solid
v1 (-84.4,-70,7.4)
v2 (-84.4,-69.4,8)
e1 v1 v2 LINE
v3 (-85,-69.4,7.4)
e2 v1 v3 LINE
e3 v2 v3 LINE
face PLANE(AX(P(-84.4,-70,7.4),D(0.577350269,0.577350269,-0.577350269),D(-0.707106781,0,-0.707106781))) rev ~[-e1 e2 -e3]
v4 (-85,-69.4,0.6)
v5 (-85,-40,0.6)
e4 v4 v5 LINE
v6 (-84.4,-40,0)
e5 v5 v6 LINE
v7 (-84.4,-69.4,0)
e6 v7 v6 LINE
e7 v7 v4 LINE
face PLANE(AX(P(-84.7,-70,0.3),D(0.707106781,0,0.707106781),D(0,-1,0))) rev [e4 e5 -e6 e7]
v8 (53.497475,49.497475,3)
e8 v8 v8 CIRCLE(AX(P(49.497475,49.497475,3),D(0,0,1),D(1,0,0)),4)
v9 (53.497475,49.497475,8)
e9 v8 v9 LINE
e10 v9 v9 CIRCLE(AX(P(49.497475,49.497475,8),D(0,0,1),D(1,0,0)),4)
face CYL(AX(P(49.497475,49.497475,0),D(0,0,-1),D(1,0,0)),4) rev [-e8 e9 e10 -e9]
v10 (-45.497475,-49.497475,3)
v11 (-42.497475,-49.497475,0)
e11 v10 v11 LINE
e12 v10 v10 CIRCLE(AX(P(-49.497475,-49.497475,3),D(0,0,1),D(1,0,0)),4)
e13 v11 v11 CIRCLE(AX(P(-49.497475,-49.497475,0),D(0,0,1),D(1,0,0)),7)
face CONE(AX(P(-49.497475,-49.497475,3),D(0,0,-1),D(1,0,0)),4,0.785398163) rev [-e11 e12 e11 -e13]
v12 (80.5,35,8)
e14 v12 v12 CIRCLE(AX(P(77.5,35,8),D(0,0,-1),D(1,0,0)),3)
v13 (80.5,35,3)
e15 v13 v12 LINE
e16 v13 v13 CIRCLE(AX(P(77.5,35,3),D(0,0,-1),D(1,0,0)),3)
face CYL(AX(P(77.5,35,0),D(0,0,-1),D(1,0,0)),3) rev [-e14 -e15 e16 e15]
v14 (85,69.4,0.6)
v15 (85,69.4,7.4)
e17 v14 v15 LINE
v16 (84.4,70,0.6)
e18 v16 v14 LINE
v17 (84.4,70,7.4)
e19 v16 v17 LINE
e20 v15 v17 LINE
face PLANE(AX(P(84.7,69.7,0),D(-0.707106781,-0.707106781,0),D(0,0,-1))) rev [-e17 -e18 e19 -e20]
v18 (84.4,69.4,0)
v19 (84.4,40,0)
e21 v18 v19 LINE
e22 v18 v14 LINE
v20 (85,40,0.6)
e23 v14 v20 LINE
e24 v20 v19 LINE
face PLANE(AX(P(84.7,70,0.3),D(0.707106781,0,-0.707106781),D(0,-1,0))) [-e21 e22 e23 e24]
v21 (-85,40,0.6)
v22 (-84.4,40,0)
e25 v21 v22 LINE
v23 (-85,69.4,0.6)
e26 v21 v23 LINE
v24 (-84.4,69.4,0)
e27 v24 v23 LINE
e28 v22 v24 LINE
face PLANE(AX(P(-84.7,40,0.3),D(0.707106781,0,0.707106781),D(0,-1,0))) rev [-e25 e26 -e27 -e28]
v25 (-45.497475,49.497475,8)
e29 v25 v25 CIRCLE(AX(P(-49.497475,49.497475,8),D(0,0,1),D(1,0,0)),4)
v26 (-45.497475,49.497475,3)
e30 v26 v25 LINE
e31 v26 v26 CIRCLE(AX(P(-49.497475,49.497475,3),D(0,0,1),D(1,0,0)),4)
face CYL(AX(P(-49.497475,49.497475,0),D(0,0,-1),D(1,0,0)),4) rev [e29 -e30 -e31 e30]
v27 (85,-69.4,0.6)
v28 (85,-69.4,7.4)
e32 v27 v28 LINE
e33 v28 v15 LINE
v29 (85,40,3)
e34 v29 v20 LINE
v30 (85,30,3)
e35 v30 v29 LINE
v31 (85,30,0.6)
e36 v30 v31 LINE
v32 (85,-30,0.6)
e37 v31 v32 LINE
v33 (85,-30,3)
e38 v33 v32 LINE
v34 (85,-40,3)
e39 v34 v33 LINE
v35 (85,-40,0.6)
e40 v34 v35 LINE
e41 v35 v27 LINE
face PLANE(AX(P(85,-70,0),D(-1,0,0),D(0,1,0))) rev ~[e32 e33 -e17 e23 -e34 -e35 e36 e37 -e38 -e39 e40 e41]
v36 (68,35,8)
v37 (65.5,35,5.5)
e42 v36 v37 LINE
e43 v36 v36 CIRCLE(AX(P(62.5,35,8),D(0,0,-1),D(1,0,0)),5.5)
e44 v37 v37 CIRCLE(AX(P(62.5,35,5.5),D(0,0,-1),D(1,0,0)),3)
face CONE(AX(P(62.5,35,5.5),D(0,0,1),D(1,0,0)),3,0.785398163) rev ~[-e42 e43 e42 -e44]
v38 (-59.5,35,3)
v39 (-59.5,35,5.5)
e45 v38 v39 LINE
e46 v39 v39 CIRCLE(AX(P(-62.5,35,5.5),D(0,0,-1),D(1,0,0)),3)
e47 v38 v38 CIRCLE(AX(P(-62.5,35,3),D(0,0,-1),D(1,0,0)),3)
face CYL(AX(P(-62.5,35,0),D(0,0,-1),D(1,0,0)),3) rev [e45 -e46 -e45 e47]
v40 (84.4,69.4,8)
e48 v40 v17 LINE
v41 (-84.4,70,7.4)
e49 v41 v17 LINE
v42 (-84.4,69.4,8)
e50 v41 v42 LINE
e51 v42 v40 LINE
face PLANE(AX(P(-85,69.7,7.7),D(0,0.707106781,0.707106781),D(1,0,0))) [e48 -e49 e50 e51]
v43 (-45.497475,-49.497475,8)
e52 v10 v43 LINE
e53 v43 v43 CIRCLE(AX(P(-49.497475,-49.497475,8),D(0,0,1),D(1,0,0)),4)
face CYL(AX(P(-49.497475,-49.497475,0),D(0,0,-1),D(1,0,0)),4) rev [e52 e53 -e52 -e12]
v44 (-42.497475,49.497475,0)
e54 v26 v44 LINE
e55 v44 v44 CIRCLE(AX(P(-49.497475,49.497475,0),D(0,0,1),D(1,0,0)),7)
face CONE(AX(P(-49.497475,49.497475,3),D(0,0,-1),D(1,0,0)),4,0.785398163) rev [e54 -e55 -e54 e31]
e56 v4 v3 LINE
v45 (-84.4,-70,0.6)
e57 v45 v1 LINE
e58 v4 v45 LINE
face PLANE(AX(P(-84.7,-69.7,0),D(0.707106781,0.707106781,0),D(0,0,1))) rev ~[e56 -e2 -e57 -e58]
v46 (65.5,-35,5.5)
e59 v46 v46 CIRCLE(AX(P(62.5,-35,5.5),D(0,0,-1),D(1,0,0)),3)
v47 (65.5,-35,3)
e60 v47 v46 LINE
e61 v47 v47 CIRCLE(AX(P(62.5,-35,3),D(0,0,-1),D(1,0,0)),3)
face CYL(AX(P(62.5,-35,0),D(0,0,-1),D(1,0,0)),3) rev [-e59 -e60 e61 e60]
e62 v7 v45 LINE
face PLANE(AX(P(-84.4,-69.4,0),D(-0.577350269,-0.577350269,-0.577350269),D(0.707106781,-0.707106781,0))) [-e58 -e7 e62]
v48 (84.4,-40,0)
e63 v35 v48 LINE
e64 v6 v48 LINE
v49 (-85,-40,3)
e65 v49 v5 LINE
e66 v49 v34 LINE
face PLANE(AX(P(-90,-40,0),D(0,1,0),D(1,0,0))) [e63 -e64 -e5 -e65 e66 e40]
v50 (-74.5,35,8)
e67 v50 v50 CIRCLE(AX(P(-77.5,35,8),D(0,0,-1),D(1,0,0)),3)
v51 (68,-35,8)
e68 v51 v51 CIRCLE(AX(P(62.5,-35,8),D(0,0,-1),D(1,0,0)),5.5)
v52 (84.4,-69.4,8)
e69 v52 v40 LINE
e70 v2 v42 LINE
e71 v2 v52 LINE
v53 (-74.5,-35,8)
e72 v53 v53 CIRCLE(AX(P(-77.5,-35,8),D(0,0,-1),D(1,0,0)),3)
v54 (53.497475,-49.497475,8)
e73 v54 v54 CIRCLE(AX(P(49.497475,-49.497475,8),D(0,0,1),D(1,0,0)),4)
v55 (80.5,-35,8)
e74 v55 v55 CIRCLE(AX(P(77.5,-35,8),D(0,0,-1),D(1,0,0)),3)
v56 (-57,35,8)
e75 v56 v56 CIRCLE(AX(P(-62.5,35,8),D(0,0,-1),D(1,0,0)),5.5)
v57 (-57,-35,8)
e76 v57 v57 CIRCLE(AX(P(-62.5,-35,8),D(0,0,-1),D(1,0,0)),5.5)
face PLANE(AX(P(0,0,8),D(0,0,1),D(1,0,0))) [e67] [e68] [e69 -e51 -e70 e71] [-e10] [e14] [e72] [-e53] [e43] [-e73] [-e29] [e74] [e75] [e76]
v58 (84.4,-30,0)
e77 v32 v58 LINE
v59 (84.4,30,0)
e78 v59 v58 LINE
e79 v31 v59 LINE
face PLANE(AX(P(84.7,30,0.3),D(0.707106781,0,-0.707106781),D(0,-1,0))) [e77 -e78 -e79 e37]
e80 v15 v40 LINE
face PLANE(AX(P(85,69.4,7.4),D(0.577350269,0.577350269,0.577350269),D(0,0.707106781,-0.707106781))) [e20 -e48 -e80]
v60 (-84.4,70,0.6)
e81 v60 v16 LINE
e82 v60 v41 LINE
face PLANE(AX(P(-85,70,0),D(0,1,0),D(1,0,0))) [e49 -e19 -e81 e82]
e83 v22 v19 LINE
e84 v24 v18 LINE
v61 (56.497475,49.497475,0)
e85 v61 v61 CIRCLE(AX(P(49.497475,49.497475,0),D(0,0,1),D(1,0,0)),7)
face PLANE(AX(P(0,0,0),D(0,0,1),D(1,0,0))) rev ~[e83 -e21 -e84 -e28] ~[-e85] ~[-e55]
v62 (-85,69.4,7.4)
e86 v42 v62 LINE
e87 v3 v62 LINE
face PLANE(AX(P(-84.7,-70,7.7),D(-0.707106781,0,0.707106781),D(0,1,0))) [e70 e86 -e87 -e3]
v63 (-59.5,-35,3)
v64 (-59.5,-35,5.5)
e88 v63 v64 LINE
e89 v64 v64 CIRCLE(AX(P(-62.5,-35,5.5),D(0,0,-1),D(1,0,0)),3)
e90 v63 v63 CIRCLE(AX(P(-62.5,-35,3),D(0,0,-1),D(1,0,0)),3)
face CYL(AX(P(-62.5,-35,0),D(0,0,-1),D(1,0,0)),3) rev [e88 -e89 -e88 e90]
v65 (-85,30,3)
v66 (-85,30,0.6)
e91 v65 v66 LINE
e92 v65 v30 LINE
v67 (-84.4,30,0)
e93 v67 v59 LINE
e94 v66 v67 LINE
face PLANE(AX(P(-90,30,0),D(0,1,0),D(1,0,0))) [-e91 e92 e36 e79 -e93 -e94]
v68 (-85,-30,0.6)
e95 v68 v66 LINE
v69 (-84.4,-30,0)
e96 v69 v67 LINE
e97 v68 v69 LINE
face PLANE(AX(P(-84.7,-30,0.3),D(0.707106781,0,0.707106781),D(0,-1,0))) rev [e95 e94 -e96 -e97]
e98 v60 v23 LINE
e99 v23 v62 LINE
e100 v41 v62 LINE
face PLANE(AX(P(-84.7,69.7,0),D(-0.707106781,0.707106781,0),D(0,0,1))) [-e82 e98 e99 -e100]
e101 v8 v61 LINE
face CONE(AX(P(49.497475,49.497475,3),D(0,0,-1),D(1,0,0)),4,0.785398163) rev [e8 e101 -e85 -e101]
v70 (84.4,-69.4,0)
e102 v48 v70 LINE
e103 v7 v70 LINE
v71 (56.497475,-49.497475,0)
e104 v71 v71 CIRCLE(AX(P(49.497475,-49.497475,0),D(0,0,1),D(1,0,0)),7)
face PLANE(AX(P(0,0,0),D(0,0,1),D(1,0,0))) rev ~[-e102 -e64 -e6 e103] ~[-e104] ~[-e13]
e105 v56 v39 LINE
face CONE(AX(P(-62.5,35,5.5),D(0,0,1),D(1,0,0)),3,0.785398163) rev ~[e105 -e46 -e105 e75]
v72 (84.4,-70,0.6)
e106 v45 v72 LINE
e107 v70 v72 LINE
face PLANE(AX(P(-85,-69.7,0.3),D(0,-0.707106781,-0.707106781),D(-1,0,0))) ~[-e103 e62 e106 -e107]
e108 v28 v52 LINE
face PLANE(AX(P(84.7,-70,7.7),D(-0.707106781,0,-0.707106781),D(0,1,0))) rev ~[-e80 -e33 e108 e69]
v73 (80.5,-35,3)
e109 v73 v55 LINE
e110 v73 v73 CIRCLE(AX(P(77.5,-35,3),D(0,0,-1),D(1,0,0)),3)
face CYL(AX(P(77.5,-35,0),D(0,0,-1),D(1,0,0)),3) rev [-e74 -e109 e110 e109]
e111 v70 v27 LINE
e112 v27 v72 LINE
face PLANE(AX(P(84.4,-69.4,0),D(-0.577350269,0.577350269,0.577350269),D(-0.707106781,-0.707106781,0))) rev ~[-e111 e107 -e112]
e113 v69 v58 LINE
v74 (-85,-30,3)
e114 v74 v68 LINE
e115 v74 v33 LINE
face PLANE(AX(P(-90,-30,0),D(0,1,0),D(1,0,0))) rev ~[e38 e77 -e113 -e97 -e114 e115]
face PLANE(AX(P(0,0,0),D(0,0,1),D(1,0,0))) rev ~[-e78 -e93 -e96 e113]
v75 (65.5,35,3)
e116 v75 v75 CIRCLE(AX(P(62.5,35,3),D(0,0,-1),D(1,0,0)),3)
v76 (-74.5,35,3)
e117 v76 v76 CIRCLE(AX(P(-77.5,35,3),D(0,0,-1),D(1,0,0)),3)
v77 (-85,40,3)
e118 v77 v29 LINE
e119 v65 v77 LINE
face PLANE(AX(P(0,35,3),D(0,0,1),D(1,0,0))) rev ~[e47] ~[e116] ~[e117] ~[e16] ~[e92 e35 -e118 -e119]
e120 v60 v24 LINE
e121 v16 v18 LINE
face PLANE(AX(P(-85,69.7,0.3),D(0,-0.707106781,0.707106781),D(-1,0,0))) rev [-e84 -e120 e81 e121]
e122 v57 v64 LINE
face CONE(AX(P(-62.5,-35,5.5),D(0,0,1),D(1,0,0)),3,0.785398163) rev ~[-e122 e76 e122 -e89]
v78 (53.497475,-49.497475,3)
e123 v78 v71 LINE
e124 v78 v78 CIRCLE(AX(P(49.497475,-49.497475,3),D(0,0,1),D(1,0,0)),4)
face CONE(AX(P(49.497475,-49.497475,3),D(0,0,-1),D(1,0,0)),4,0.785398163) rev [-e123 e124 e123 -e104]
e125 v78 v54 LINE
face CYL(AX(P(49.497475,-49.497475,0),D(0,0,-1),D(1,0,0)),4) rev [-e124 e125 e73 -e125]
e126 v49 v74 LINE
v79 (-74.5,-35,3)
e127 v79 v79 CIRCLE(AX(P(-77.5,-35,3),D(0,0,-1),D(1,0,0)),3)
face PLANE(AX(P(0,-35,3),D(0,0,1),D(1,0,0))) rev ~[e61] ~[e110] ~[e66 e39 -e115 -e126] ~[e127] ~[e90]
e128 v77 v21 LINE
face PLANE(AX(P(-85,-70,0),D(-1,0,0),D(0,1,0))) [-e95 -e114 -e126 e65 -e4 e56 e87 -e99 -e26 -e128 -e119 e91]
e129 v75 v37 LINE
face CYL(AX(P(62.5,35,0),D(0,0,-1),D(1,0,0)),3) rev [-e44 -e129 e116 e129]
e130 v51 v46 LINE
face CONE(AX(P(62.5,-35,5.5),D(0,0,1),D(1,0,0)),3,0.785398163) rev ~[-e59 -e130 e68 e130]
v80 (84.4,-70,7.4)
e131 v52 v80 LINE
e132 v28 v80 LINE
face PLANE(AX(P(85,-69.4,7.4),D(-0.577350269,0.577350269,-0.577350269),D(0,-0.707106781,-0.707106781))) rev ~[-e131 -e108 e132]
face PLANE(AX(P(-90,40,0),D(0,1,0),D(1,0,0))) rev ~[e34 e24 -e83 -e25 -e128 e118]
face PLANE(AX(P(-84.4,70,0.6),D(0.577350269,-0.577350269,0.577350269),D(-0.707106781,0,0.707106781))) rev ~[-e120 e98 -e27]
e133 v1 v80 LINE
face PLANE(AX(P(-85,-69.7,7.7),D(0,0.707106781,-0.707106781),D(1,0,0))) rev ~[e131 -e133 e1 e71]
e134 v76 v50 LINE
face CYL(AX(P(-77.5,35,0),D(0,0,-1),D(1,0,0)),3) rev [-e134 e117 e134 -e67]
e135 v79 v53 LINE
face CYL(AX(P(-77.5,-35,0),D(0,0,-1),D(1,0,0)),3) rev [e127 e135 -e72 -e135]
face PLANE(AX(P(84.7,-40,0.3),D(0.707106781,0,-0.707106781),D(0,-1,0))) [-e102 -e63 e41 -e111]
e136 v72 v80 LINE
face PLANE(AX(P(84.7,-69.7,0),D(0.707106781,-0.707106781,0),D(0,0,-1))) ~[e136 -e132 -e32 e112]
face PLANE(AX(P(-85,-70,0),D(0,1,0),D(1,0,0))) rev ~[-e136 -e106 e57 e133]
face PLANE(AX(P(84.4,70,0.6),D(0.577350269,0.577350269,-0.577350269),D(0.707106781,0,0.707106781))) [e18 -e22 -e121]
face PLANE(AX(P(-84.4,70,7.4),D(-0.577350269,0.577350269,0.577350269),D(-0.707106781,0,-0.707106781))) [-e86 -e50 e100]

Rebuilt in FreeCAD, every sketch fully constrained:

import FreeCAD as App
import Part
import Sketcher


def edges_at(feature, points):
    """Names of the edges that pass closest to the given points."""
    edges = feature.Shape.Edges
    near = lambda p: min(range(len(edges)), key=lambda i: edges[i].distToShape(Part.Vertex(*p))[0])
    return sorted({f"Edge{near(p) + 1}" for p in points})


def add_polygon(sketch, points):
    """Adds a closed chain of lines whose ends are joined by coincident constraints."""
    first, n = sketch.GeometryCount, len(points)
    for a, b in zip(points, points[1:] + points[:1]):
        sketch.addGeometry(Part.LineSegment(App.Vector(*a, 0), App.Vector(*b, 0)), False)
    for i in range(n):
        sketch.addConstraint(Sketcher.Constraint("Coincident", first + i, 2, first + (i + 1) % n, 1))

doc = App.newDocument("Part")
body = doc.addObject("PartDesign::Body", "Body")

# Sketch on XY plane
sketch1 = body.newObject("Sketcher::SketchObject", "Sketch")
sketch1.AttachmentSupport = (doc.getObject("XY_Plane"), [""])
sketch1.MapMode = "FlatFace"
add_polygon(sketch1, [(-85, 70), (-85, -70), (85, -70), (85, 70)])  # lines 0-3
sketch1.addGeometry(Part.Circle(App.Vector(-49.497475, -49.497475, 0), App.Vector(0, 0, 1), 4), False)  # 4
sketch1.addGeometry(Part.Circle(App.Vector(49.497475, -49.497475, 0), App.Vector(0, 0, 1), 4), False)  # 5
sketch1.addGeometry(Part.Circle(App.Vector(-49.497475, 49.497475, 0), App.Vector(0, 0, 1), 4), False)  # 6
sketch1.addGeometry(Part.Circle(App.Vector(49.497475, 49.497475, 0), App.Vector(0, 0, 1), 4), False)  # 7
sketch1.addConstraint(Sketcher.Constraint("Vertical", 0))
sketch1.addConstraint(Sketcher.Constraint("Horizontal", 1))
sketch1.addConstraint(Sketcher.Constraint("Vertical", 2))
sketch1.addConstraint(Sketcher.Constraint("Horizontal", 3))
sketch1.addConstraint(Sketcher.Constraint("Equal", 4, 5))
sketch1.addConstraint(Sketcher.Constraint("Equal", 5, 6))
sketch1.addConstraint(Sketcher.Constraint("Equal", 6, 7))
sketch1.addConstraint(Sketcher.Constraint("Symmetric", 5, 3, 6, 3, -1, 1))
sketch1.addConstraint(Sketcher.Constraint("Symmetric", 4, 3, 7, 3, -1, 1))
sketch1.addConstraint(Sketcher.Constraint("Symmetric", 0, 2, 2, 2, -1, 1))
sketch1.addConstraint(Sketcher.Constraint("Symmetric", 4, 3, 5, 3, -2))
sketch1.addConstraint(Sketcher.Constraint("Diameter", 4, 8.0))
sketch1.addConstraint(Sketcher.Constraint("DistanceX", 1, 1, 1, 2, 170.0))
sketch1.addConstraint(Sketcher.Constraint("DistanceY", 0, 2, 0, 1, 140.0))
sketch1.addConstraint(Sketcher.Constraint("DistanceX", 4, 3, 5, 3, 98.994949))
sketch1.addConstraint(Sketcher.Constraint("DistanceY", 4, 3, 6, 3, 98.994949))
pad1 = body.newObject("PartDesign::Pad", "Pad")
pad1.Profile = sketch1
pad1.Length = 8
doc.recompute()

chamfer = body.newObject("PartDesign::Chamfer", "Chamfer")
chamfer.Base = (pad1, edges_at(pad1, [
    (-53.497, -49.497, 0),
    (-53.497, 49.497, 0),
    (45.497, 49.497, 0),
    (45.497, -49.497, 0),
]))
chamfer.Size = 3

# Sketch on XY plane
sketch2 = body.newObject("Sketcher::SketchObject", "Sketch001")
sketch2.AttachmentSupport = (doc.getObject("XY_Plane"), [""])
sketch2.MapMode = "FlatFace"
add_polygon(sketch2, [(-90, -30), (-90, -40), (90, -40), (90, -30)])  # lines 0-3
add_polygon(sketch2, [(-90, 40), (-90, 30), (90, 30), (90, 40)])  # lines 4-7
sketch2.addConstraint(Sketcher.Constraint("Vertical", 0))
sketch2.addConstraint(Sketcher.Constraint("Horizontal", 1))
sketch2.addConstraint(Sketcher.Constraint("Vertical", 2))
sketch2.addConstraint(Sketcher.Constraint("Horizontal", 3))
sketch2.addConstraint(Sketcher.Constraint("Vertical", 4))
sketch2.addConstraint(Sketcher.Constraint("Horizontal", 5))
sketch2.addConstraint(Sketcher.Constraint("Vertical", 6))
sketch2.addConstraint(Sketcher.Constraint("Horizontal", 7))
sketch2.addConstraint(Sketcher.Constraint("Symmetric", 2, 2, 4, 2, -1, 1))
sketch2.addConstraint(Sketcher.Constraint("Symmetric", 0, 2, 6, 2, -1, 1))
sketch2.addConstraint(Sketcher.Constraint("Vertical", 3, 2, 4, 2))
sketch2.addConstraint(Sketcher.Constraint("DistanceX", 1, 1, 1, 2, 180.0))
sketch2.addConstraint(Sketcher.Constraint("DistanceY", 0, 2, 0, 1, 10.0))
sketch2.addConstraint(Sketcher.Constraint("DistanceY", 0, 2, -1, 1, 40.0))
pocket1 = body.newObject("PartDesign::Pocket", "Pocket")
pocket1.Profile = sketch2
pocket1.Type = "TwoLengths"
pocket1.Length = 25
pocket1.Length2 = 3

# Sketch on XY plane
sketch3 = body.newObject("Sketcher::SketchObject", "Sketch002")
sketch3.AttachmentSupport = (doc.getObject("XY_Plane"), [""])
sketch3.MapMode = "FlatFace"
sketch3.addGeometry(Part.Circle(App.Vector(-62.5, -35, 0), App.Vector(0, 0, 1), 3), False)
sketch3.addGeometry(Part.Circle(App.Vector(-77.5, -35, 0), App.Vector(0, 0, 1), 3), False)
sketch3.addGeometry(Part.Circle(App.Vector(-62.5, 35, 0), App.Vector(0, 0, 1), 3), False)
sketch3.addGeometry(Part.Circle(App.Vector(-77.5, 35, 0), App.Vector(0, 0, 1), 3), False)
sketch3.addGeometry(Part.Circle(App.Vector(62.5, 35, 0), App.Vector(0, 0, 1), 3), False)
sketch3.addGeometry(Part.Circle(App.Vector(77.5, 35, 0), App.Vector(0, 0, 1), 3), False)
sketch3.addGeometry(Part.Circle(App.Vector(62.5, -35, 0), App.Vector(0, 0, 1), 3), False)
sketch3.addGeometry(Part.Circle(App.Vector(77.5, -35, 0), App.Vector(0, 0, 1), 3), False)
sketch3.addConstraint(Sketcher.Constraint("Equal", 0, 1))
sketch3.addConstraint(Sketcher.Constraint("Equal", 1, 2))
sketch3.addConstraint(Sketcher.Constraint("Equal", 2, 3))
sketch3.addConstraint(Sketcher.Constraint("Equal", 3, 4))
sketch3.addConstraint(Sketcher.Constraint("Equal", 4, 5))
sketch3.addConstraint(Sketcher.Constraint("Equal", 5, 6))
sketch3.addConstraint(Sketcher.Constraint("Equal", 6, 7))
sketch3.addConstraint(Sketcher.Constraint("Symmetric", 0, 3, 4, 3, -1, 1))
sketch3.addConstraint(Sketcher.Constraint("Symmetric", 1, 3, 5, 3, -1, 1))
sketch3.addConstraint(Sketcher.Constraint("Symmetric", 2, 3, 6, 3, -1, 1))
sketch3.addConstraint(Sketcher.Constraint("Symmetric", 3, 3, 7, 3, -1, 1))
sketch3.addConstraint(Sketcher.Constraint("Symmetric", 2, 3, 4, 3, -2))
sketch3.addConstraint(Sketcher.Constraint("Symmetric", 3, 3, 5, 3, -2))
sketch3.addConstraint(Sketcher.Constraint("Horizontal", 0, 3, 1, 3))
sketch3.addConstraint(Sketcher.Constraint("Diameter", 0, 6.0))
sketch3.addConstraint(Sketcher.Constraint("DistanceY", 0, 3, -1, 1, 35.0))
sketch3.addConstraint(Sketcher.Constraint("DistanceX", 1, 3, 0, 3, 15.0))
sketch3.addConstraint(Sketcher.Constraint("DistanceX", 2, 3, 4, 3, 125.0))
pocket2 = body.newObject("PartDesign::Pocket", "Pocket001")
pocket2.Profile = sketch3
pocket2.Length = 25
pocket2.Reversed = True
doc.recompute()

chamfer2 = body.newObject("PartDesign::Chamfer", "Chamfer001")
chamfer2.Base = (pocket2, edges_at(pocket2, [
    (-65.5, 35, 8),
    (-65.5, -35, 8),
    (59.5, -35, 8),
    (59.5, 35, 8),
]))
chamfer2.Size = 2.5
doc.recompute()

chamfer3 = body.newObject("PartDesign::Chamfer", "Chamfer002")
chamfer3.Base = (chamfer2, edges_at(chamfer2, [
    (-85, 0, 8),
    (0, 70, 8),
    (0, -70, 8),
    (85, 0, 8),
    (85, -70, 4),
    (-85, -70, 4),
    (85, 55, 0),
    (-85, 55, 0),
    (0, 70, 0),
    (-85, 0, 0),
    (-85, -55, 0),
    (85, 0, 0),
    (85, -55, 0),
    (0, -70, 0),
    (85, 70, 4),
    (-85, 70, 4),
]))
chamfer3.Size = 0.6

doc.recompute()
